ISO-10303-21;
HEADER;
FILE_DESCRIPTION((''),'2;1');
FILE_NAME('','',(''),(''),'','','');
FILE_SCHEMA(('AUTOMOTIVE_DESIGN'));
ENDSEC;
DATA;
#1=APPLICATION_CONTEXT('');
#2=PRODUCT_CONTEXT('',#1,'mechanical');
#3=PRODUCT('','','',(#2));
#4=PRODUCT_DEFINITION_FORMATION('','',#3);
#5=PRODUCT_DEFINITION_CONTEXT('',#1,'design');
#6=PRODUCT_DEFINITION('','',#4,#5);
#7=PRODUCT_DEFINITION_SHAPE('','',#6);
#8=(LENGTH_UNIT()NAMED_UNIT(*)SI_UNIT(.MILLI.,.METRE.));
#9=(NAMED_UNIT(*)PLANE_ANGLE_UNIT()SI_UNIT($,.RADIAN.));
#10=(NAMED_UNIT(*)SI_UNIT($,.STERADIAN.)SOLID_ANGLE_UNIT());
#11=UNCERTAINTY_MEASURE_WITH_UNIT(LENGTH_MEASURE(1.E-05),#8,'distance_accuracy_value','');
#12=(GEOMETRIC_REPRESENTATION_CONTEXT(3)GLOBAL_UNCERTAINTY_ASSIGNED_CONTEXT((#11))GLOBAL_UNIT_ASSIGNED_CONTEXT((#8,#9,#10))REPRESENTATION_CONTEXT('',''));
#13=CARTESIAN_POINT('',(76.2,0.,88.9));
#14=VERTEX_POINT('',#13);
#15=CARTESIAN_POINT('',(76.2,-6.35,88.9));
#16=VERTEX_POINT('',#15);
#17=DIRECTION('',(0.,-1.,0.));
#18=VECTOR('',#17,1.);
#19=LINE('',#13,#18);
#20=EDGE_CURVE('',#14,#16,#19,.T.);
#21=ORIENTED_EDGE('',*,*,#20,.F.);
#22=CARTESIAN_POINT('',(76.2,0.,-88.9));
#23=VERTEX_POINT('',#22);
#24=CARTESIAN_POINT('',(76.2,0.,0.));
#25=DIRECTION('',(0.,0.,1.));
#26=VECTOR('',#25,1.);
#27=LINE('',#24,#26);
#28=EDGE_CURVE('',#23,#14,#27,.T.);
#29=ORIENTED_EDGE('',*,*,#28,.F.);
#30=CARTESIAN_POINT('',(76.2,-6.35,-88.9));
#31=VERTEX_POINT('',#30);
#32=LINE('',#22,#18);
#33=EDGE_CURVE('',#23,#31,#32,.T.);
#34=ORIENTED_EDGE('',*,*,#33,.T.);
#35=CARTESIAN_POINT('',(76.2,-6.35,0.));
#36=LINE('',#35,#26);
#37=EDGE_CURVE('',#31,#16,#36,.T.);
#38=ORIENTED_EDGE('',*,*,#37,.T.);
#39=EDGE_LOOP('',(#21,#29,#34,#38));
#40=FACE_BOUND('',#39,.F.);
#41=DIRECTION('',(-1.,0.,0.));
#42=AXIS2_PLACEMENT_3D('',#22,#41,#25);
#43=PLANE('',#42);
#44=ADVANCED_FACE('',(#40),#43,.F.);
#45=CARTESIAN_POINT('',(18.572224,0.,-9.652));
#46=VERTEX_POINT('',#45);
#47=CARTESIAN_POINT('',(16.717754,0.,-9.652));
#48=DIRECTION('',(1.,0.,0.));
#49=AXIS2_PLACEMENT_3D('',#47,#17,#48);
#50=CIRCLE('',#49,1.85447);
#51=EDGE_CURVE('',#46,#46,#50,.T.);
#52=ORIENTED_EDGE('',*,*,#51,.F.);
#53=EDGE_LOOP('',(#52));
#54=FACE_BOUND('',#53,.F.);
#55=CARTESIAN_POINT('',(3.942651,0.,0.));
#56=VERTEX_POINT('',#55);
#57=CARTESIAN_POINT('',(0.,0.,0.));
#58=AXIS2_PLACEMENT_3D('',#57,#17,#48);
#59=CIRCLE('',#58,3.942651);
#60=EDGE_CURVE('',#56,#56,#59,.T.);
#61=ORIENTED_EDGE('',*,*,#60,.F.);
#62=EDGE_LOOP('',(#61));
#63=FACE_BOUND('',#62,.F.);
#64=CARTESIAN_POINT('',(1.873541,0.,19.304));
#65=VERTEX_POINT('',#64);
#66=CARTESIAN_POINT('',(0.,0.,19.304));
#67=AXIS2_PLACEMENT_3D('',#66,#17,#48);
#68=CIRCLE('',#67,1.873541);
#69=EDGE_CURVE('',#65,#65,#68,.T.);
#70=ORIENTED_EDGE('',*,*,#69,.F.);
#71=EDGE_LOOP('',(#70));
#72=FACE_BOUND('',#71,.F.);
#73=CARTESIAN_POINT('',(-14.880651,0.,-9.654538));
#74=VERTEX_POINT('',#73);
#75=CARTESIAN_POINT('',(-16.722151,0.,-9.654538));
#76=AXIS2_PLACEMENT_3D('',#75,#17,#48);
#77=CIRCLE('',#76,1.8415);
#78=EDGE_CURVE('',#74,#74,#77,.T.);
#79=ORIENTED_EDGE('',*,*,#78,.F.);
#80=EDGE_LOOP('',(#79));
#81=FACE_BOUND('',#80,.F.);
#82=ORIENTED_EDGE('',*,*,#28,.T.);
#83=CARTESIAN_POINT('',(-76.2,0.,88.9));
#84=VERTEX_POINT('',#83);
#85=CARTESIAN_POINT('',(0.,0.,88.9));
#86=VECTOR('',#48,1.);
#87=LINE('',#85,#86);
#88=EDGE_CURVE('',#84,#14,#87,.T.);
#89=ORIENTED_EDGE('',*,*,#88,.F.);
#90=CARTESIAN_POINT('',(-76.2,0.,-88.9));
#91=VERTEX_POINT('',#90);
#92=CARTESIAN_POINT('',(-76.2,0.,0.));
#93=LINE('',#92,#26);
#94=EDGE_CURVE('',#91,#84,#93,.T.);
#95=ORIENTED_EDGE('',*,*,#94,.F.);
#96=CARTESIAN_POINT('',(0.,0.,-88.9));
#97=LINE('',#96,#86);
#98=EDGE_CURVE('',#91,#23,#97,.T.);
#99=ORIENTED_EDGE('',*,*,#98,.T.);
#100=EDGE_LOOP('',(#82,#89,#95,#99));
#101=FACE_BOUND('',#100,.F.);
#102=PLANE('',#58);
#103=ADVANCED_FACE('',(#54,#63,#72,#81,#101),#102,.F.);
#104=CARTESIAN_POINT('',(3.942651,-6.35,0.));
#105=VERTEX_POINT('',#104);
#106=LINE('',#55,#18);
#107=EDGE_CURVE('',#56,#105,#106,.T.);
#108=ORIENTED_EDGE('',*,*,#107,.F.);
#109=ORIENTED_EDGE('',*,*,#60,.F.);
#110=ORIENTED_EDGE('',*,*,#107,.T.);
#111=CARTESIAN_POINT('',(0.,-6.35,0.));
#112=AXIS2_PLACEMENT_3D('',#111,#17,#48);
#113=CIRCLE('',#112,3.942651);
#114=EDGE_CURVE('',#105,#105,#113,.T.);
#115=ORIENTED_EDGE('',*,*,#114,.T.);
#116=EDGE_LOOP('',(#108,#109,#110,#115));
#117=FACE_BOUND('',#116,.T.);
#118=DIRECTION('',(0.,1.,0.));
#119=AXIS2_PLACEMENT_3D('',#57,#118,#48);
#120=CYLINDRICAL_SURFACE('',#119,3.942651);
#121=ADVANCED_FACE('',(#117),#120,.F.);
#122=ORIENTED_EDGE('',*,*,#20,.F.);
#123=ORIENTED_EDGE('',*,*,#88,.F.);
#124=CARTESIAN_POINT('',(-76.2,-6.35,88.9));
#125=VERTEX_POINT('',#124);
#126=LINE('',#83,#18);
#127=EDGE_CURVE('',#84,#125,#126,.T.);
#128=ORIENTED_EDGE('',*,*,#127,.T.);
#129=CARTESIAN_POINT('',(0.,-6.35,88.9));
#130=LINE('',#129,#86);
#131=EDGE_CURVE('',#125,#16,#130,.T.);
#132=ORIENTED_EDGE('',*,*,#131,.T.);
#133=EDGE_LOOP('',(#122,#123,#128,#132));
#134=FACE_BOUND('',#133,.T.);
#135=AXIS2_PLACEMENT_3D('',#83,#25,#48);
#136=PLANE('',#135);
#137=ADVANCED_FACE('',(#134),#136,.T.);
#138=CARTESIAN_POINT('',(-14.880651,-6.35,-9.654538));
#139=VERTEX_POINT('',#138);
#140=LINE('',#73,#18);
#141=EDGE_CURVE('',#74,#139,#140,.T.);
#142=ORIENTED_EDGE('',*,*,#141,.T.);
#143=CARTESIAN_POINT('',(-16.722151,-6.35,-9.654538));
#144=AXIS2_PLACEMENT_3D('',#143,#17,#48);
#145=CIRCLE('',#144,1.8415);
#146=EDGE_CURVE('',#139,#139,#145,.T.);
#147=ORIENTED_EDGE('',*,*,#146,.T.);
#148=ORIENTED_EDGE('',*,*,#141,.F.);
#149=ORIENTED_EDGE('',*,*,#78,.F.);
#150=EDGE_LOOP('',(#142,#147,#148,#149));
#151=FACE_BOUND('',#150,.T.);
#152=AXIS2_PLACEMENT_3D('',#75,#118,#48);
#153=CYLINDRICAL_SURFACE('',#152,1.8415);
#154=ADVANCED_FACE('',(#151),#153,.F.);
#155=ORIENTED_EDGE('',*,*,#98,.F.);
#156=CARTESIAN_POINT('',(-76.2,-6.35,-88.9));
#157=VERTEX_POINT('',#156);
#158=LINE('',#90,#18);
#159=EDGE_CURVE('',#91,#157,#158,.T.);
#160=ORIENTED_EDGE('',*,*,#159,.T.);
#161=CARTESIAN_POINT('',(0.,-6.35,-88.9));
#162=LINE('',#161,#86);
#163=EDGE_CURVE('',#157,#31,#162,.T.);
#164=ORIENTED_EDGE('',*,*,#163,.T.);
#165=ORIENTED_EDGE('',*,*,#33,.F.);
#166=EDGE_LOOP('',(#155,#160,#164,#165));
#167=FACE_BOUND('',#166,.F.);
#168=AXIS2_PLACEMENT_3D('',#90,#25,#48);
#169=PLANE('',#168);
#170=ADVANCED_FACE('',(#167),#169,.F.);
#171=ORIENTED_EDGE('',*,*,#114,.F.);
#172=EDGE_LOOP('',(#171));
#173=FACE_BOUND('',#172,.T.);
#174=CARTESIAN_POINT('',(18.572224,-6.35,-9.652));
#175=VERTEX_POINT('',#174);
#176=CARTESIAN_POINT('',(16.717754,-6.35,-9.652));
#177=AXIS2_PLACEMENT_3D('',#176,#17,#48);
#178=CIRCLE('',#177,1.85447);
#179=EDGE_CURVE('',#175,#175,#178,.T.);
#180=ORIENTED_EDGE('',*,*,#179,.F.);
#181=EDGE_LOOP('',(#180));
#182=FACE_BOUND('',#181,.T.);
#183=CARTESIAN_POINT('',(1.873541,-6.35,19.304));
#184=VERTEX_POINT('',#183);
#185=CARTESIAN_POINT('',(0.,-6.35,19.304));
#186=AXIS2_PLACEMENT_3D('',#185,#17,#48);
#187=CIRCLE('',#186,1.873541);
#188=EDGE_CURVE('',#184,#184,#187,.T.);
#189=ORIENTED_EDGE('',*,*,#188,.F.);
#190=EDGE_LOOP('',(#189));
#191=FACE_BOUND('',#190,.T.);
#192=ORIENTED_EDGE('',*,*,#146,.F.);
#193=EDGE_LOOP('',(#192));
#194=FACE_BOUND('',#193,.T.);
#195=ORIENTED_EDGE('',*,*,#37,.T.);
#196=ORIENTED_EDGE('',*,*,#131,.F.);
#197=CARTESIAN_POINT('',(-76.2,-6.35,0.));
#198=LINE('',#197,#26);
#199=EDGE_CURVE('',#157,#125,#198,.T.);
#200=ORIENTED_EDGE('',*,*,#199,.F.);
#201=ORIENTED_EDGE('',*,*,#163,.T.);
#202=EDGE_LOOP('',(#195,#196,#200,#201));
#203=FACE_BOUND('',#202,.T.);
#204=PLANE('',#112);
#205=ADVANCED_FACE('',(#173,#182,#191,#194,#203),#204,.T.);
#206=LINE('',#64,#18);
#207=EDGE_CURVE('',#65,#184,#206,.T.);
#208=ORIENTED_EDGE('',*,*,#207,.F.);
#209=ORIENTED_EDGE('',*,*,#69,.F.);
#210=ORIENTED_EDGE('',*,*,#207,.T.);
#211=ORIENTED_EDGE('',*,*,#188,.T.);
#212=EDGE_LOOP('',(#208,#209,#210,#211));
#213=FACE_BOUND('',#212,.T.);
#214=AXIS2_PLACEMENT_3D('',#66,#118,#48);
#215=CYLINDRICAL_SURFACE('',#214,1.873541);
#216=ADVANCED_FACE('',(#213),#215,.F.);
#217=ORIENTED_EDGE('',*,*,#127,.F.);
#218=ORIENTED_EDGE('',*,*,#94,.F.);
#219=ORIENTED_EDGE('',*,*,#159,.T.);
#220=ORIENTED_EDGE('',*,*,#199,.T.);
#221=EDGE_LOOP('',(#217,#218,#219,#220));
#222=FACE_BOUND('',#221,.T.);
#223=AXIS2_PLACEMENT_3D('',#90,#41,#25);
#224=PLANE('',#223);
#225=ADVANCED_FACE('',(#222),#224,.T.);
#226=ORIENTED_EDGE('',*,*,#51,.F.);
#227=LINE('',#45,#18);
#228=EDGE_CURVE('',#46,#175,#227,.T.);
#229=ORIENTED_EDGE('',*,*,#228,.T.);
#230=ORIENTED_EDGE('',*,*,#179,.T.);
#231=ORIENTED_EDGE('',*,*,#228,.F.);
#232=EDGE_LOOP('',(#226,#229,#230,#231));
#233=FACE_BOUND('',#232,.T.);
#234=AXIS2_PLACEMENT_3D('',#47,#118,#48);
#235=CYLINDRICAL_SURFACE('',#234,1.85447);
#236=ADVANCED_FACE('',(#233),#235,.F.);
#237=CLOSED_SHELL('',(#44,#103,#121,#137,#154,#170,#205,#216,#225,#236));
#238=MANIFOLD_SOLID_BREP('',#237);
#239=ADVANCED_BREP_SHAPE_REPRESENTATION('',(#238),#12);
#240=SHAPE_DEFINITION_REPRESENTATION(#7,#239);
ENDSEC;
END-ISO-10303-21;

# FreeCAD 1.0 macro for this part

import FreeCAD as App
import Part
import Sketcher

V = App.Vector
Q = App.Units.Quantity

doc = App.newDocument("Part")
params = doc.addObject("Spreadsheet::Sheet", "Params")
for row, (alias, value) in enumerate([
    ("sketch1_width", "6 in"),
    ("sketch1_height", "7 in"),
    ("sketch1_diameter", "0.145 in"),
    ("pad1_length", "0.25 in"),
], start=1):
    params.set(f"A{row}", alias)
    params.set(f"B{row}", "=" + value)
    params.setAlias(f"B{row}", alias)

body = doc.addObject("PartDesign::Body", "Body")

sketch1 = body.newObject("Sketcher::SketchObject", "Sketch")
sketch1.AttachmentSupport = (doc.getObject("XZ_Plane"), [""])
sketch1.MapMode = "FlatFace"
sketch1.addGeometry(Part.LineSegment(V(-76.2, 88.9, 0), V(-76.2, -88.9, 0)), False)
sketch1.addGeometry(Part.LineSegment(V(-76.2, -88.9, 0), V(76.2, -88.9, 0)), False)
sketch1.addGeometry(Part.LineSegment(V(76.2, -88.9, 0), V(76.2, 88.9, 0)), False)
sketch1.addGeometry(Part.LineSegment(V(76.2, 88.9, 0), V(-76.2, 88.9, 0)), False)
sketch1.addGeometry(Part.Circle(V(-16.722151, -9.654538, 0), V(0, 0, 1), 1.8415), False)
sketch1.addGeometry(Part.Circle(V(0, 0, 0), V(0, 0, 1), 3.942651), False)
sketch1.addGeometry(Part.Circle(V(16.717754, -9.652, 0), V(0, 0, 1), 1.85447), False)
sketch1.addGeometry(Part.Circle(V(0, 19.304, 0), V(0, 0, 1), 1.873541), False)
sketch1.addConstraint(Sketcher.Constraint("Coincident", 0, 2, 1, 1))
sketch1.addConstraint(Sketcher.Constraint("Coincident", 1, 2, 2, 1))
sketch1.addConstraint(Sketcher.Constraint("Coincident", 2, 2, 3, 1))
sketch1.addConstraint(Sketcher.Constraint("Coincident", 3, 2, 0, 1))
sketch1.addConstraint(Sketcher.Constraint("Vertical", 0))
sketch1.addConstraint(Sketcher.Constraint("Horizontal", 1))
sketch1.addConstraint(Sketcher.Constraint("Vertical", 2))
sketch1.addConstraint(Sketcher.Constraint("Horizontal", 3))
sketch1.addConstraint(Sketcher.Constraint("Coincident", 5, 3, -1, 1))
sketch1.addConstraint(Sketcher.Constraint("Symmetric", 0, 2, 2, 2, -1, 1))
sketch1.addConstraint(Sketcher.Constraint("PointOnObject", 7, 3, -2))
sketch1.addConstraint(Sketcher.Constraint("DistanceX", 1, 1, 1, 2, Q("6 in")))
sketch1.addConstraint(Sketcher.Constraint("DistanceY", 0, 2, 0, 1, Q("7 in")))
sketch1.addConstraint(Sketcher.Constraint("Diameter", 4, Q("0.145 in")))
sketch1.addConstraint(Sketcher.Constraint("DistanceY", 6, 3, -1, 1, Q("0.38 in")))
sketch1.addConstraint(Sketcher.Constraint("DistanceY", -1, 1, 7, 3, Q("0.76 in")))
sketch1.addConstraint(Sketcher.Constraint("Diameter", 6, 3.70894))
sketch1.addConstraint(Sketcher.Constraint("Diameter", 7, 3.747082))
sketch1.addConstraint(Sketcher.Constraint("Diameter", 5, 7.885302))
sketch1.addConstraint(Sketcher.Constraint("DistanceY", 4, 3, -1, 1, Q("0.3800999 in")))
sketch1.addConstraint(Sketcher.Constraint("DistanceX", 4, 3, -1, 1, 16.722151))
sketch1.addConstraint(Sketcher.Constraint("DistanceX", -1, 1, 6, 3, 16.717754))
sketch1.setExpression("Constraints[11]", "Params.sketch1_width")
sketch1.setExpression("Constraints[12]", "Params.sketch1_height")
sketch1.setExpression("Constraints[13]", "Params.sketch1_diameter")
pad1 = body.newObject("PartDesign::Pad", "Pad")
pad1.Profile = sketch1
pad1.setExpression("Length", "Params.pad1_length")

doc.recompute()
